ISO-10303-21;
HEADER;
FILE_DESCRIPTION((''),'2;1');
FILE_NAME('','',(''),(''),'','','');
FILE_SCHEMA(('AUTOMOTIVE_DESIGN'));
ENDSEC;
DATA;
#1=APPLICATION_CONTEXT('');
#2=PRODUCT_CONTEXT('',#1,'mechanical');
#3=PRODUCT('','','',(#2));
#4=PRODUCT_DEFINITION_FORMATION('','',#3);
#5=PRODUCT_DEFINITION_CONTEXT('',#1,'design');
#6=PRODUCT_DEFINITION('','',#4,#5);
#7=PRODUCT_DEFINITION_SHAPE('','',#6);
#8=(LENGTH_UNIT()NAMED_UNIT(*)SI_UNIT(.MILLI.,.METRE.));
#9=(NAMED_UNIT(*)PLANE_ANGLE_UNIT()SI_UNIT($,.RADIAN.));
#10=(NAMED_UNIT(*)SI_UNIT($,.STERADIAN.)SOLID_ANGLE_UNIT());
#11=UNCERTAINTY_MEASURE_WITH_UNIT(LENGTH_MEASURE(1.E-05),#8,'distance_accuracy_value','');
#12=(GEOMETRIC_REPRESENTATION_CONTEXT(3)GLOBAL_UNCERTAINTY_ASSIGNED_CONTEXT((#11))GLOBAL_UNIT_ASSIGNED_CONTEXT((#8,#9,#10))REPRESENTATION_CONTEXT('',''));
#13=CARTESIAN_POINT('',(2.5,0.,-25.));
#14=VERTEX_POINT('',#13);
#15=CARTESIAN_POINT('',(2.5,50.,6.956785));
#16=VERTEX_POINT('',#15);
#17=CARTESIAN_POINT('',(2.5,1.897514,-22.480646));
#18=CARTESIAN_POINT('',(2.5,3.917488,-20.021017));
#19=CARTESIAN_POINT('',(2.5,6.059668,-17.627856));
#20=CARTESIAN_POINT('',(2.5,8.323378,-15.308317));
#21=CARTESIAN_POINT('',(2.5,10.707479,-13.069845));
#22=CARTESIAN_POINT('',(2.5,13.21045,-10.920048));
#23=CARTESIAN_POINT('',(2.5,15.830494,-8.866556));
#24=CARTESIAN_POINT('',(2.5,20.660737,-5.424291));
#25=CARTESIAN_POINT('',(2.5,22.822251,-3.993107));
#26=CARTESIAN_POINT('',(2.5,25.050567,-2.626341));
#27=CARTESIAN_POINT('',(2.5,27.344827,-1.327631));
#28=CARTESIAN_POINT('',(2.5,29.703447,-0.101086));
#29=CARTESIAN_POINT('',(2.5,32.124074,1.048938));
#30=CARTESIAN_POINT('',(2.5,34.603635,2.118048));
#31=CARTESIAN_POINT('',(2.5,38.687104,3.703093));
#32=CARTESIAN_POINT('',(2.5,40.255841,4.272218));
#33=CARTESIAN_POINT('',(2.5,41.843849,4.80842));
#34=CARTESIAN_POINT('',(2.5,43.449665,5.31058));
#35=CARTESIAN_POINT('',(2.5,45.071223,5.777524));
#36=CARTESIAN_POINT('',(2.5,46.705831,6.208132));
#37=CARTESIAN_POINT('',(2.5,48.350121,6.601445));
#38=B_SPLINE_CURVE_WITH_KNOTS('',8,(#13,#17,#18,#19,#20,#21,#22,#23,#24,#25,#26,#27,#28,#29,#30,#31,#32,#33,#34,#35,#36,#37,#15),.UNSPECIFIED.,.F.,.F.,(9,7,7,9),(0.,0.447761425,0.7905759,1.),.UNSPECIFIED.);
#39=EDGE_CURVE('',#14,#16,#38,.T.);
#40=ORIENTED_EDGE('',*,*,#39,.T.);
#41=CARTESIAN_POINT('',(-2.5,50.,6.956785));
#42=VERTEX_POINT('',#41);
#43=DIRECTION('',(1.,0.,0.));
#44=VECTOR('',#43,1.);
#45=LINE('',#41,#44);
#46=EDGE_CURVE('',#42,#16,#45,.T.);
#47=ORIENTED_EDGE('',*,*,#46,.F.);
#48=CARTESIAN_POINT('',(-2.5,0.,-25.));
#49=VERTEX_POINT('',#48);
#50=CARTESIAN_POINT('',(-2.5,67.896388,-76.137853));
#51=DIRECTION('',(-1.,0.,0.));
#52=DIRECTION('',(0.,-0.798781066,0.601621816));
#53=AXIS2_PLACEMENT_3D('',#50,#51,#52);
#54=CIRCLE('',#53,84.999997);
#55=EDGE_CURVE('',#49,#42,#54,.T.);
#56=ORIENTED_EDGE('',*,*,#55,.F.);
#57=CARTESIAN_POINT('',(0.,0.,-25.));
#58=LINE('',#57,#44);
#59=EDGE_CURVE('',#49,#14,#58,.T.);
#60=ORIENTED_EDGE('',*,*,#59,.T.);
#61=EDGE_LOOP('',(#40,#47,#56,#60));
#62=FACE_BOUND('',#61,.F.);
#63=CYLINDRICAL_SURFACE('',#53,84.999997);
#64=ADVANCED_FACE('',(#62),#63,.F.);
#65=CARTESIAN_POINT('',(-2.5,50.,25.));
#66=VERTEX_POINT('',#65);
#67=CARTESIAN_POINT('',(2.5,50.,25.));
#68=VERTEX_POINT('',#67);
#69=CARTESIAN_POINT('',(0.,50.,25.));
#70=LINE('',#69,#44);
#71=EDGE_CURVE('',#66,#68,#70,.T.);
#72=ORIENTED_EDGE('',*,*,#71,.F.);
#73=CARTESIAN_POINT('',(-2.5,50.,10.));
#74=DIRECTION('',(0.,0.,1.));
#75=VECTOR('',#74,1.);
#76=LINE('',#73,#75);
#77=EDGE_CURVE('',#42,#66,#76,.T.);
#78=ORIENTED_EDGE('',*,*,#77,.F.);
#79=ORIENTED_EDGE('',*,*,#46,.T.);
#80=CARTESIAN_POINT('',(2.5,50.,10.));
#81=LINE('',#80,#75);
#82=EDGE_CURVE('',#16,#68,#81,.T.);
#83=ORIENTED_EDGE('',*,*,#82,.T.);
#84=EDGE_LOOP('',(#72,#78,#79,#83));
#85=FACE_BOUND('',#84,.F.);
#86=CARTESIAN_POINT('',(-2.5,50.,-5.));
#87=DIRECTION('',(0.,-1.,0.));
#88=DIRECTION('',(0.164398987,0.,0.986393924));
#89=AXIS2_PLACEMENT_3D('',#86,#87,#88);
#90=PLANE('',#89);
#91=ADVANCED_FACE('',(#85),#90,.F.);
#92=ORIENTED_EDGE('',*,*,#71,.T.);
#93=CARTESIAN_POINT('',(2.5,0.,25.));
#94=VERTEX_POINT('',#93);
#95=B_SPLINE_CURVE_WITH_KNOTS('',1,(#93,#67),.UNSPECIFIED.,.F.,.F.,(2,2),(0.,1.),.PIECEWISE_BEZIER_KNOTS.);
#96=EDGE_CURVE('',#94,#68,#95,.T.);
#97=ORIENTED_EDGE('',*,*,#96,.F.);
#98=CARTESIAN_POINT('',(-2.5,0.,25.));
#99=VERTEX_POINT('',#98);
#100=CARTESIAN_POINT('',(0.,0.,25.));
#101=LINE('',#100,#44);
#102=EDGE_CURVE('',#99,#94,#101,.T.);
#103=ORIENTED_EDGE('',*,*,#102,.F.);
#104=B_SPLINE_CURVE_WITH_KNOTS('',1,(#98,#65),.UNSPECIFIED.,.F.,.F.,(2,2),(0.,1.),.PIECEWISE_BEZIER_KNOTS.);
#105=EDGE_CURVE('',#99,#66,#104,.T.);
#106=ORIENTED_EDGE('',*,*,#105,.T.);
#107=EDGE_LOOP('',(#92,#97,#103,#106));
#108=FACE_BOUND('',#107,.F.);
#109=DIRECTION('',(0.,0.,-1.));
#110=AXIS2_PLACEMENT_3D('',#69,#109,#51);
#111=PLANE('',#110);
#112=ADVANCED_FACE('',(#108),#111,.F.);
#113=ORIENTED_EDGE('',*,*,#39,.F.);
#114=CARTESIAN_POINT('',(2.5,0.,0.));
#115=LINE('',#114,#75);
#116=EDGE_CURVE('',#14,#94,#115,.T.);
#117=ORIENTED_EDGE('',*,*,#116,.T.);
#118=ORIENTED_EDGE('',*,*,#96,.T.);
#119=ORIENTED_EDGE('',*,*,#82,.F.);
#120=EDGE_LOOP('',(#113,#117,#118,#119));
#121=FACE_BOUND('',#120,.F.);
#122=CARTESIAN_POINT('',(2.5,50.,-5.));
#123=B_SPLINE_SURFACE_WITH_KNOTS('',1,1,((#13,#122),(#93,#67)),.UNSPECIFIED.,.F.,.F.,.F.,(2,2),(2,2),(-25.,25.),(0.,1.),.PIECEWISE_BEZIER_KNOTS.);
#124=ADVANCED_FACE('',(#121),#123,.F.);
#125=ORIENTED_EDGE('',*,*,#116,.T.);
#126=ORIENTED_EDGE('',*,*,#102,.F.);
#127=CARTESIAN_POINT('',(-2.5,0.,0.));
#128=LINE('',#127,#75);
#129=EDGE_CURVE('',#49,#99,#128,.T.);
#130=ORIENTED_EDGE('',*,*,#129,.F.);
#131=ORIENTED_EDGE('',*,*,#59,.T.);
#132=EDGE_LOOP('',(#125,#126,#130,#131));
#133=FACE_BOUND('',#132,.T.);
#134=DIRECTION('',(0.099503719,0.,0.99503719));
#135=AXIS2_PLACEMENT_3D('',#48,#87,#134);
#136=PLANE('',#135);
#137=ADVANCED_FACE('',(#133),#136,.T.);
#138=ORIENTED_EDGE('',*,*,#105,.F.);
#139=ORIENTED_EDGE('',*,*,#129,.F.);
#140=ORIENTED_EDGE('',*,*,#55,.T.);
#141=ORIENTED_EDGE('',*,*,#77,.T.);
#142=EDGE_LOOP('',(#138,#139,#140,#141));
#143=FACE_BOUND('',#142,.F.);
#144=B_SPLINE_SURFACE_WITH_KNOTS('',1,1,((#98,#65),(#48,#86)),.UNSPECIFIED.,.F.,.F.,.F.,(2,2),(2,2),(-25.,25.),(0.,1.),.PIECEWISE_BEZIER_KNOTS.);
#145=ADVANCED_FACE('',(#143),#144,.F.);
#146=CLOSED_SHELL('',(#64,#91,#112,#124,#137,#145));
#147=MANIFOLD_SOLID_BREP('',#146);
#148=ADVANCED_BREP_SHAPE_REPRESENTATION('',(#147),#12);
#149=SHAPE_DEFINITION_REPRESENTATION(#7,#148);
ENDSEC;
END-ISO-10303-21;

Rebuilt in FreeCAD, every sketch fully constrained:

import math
import FreeCAD as App
import Part
import Sketcher
from FreeCAD import Vector
Q = App.Units.Quantity


def add_polygon(sketch, points):
    """Adds a closed chain of lines whose ends are joined by coincident constraints."""
    first, n = sketch.GeometryCount, len(points)
    for a, b in zip(points, points[1:] + points[:1]):
        sketch.addGeometry(Part.LineSegment(App.Vector(*a, 0), App.Vector(*b, 0)), False)
    for i in range(n):
        sketch.addConstraint(Sketcher.Constraint("Coincident", first + i, 2, first + (i + 1) % n, 1))

doc = App.newDocument("Part")
body = doc.addObject("PartDesign::Body", "Body")

sketch1 = doc.addObject("Sketcher::SketchObject", "Sketch")
body.addObject(sketch1)
sketch1.AttachmentSupport = (doc.XZ_Plane, [""])
sketch1.MapMode = "FlatFace"
add_polygon(sketch1, [(-2, 25), (-2, -25), (2, -25), (2, 25)])
sketch1.addConstraint([
    Sketcher.Constraint("Vertical", 0),
    Sketcher.Constraint("Horizontal", 1),
    Sketcher.Constraint("Vertical", 2),
    Sketcher.Constraint("Horizontal", 3),
    Sketcher.Constraint("Symmetric", 0, 2, 2, 2, -1, 1),
    Sketcher.Constraint("DistanceX", 1, 1, 1, 2, Q("5 mm")),
    Sketcher.Constraint("DistanceY", 0, 2, 0, 1, Q("50 mm")),
])

sketch2 = doc.addObject("Sketcher::SketchObject", "Sketch001")
body.addObject(sketch2)
sketch2.AttachmentSupport = (doc.XZ_Plane, [""])
sketch2.MapMode = "FlatFace"
sketch2.AttachmentOffset = App.Placement(Vector(0, 0, -50), App.Rotation())
add_polygon(sketch2, [(-2, 25), (-2, -5), (2, -5), (2, 25)])
sketch2.addConstraint([
    Sketcher.Constraint("Vertical", 0),
    Sketcher.Constraint("Horizontal", 1),
    Sketcher.Constraint("Vertical", 2),
    Sketcher.Constraint("Horizontal", 3),
    Sketcher.Constraint("DistanceX", 1, 1, 1, 2, Q("5 mm")),
    Sketcher.Constraint("DistanceY", 0, 2, 0, 1, Q("30 mm")),
    Sketcher.Constraint("DistanceY", 0, 2, -1, 1, Q("5 mm")),
    Sketcher.Constraint("DistanceX", 0, 2, -1, 1, Q("2.5 mm")),
])

additiveloft = doc.addObject("PartDesign::AdditiveLoft", "AdditiveLoft")
body.addObject(additiveloft)
additiveloft.Profile = sketch1
additiveloft.Sections = [sketch2]

sketch3 = doc.addObject("Sketcher::SketchObject", "Sketch002")
body.addObject(sketch3)
sketch3.AttachmentSupport = (doc.YZ_Plane, [""])
sketch3.MapMode = "FlatFace"
sketch3.AttachmentOffset = App.Placement(Vector(0, 0, -2.5), App.Rotation())
sketch3.addGeometry([
    Part.LineSegment(Vector(50, -5, 0), Vector(0, -25, 0)),
    Part.ArcOfCircle(Part.Circle(Vector(68, -76, 0), Vector(0, 0, 1), 85), math.radians(102), math.radians(143)),
    Part.LineSegment(Vector(50, 7, 0), Vector(50, -5, 0)),
], False)
sketch3.addConstraint([
    Sketcher.Constraint("Coincident", 0, 2, 1, 2),
    Sketcher.Constraint("Coincident", 1, 1, 2, 1),
    Sketcher.Constraint("Coincident", 2, 2, 0, 1),
    Sketcher.Constraint("Vertical", 2),
    Sketcher.Constraint("PointOnObject", 0, 2, -2),
    Sketcher.Constraint("DistanceY", 0, 2, -1, 1, Q("25 mm")),
    Sketcher.Constraint("DistanceX", -1, 1, 1, 1, Q("50 mm")),
    Sketcher.Constraint("DistanceY", 2, 2, -1, 1, Q("5 mm")),
    Sketcher.Constraint("Radius", 1, Q("84.999997 mm")),
    Sketcher.Constraint("DistanceY", 2, 2, 2, 1, Q("11.956785 mm")),
])
pocket1 = doc.addObject("PartDesign::Pocket", "Pocket")
body.addObject(pocket1)
pocket1.Profile = sketch3
pocket1.Length = 25
pocket1.Reversed = True

doc.recompute()
